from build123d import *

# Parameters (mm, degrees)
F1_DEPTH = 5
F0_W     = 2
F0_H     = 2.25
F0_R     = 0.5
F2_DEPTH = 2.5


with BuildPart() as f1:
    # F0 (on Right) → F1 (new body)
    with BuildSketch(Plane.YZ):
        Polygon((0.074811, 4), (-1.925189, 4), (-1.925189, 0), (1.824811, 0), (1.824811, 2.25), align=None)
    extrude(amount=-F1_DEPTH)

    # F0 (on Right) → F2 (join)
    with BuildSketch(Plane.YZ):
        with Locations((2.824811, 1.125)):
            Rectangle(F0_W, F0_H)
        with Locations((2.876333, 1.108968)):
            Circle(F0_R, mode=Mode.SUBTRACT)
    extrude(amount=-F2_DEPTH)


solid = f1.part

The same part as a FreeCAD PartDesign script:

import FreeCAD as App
import Part
import Sketcher

V = App.Vector
Q = App.Units.Quantity


def add_polygon(sketch, points):
    """Adds a closed chain of lines whose ends are joined by coincident constraints."""
    first, n = sketch.GeometryCount, len(points)
    for a, b in zip(points, points[1:] + points[:1]):
        sketch.addGeometry(Part.LineSegment(App.Vector(*a, 0), App.Vector(*b, 0)), False)
    for i in range(n):
        sketch.addConstraint(Sketcher.Constraint("Coincident", first + i, 2, first + (i + 1) % n, 1))

doc = App.newDocument("Part")
body = doc.addObject("PartDesign::Body", "Body")

# Sketch on YZ plane
sketch1 = body.newObject("Sketcher::SketchObject", "Sketch")
sketch1.AttachmentSupport = (doc.getObject("YZ_Plane"), [""])
sketch1.MapMode = "FlatFace"
add_polygon(sketch1, [(0.074811, 4), (-1.925189, 4), (-1.925189, 0), (1.824811, 0), (1.824811, 2.25)])  # lines 0-4
sketch1.addConstraint([
    Sketcher.Constraint("Horizontal", 0),
    Sketcher.Constraint("Vertical", 1),
    Sketcher.Constraint("Horizontal", 2),
    Sketcher.Constraint("Vertical", 3),
    Sketcher.Constraint("PointOnObject", 1, 2, -1),
    Sketcher.Constraint("DistanceX", 0, 2, 0, 1, Q("2 mm")),
    Sketcher.Constraint("DistanceY", 1, 2, 1, 1, Q("4 mm")),
    Sketcher.Constraint("Angle", 4, Q("135 deg")),
    Sketcher.Constraint("DistanceX", 2, 1, 2, 2, Q("3.75 mm")),
    Sketcher.Constraint("DistanceX", 0, 2, -1, 1, Q("1.925189 mm")),
])
pad1 = body.newObject("PartDesign::Pad", "Pad")
pad1.Profile = sketch1
pad1.Length = 5
pad1.Reversed = True

# Sketch on YZ plane
sketch2 = body.newObject("Sketcher::SketchObject", "Sketch001")
sketch2.AttachmentSupport = (doc.getObject("YZ_Plane"), [""])
sketch2.MapMode = "FlatFace"
add_polygon(sketch2, [(1.824811, 2.25), (1.824811, 0), (3.824811, 0), (3.824811, 2.25)])  # lines 0-3
sketch2.addGeometry(Part.Circle(V(2.876333, 1.108968, 0), V(0, 0, 1), 0.5), False)  # 4
sketch2.addConstraint([
    Sketcher.Constraint("Vertical", 0),
    Sketcher.Constraint("Horizontal", 1),
    Sketcher.Constraint("Vertical", 2),
    Sketcher.Constraint("Horizontal", 3),
    Sketcher.Constraint("PointOnObject", 0, 2, -1),
    Sketcher.Constraint("Diameter", 4, Q("1 mm")),
    Sketcher.Constraint("DistanceX", 1, 1, 1, 2, Q("2 mm")),
    Sketcher.Constraint("DistanceY", 0, 2, 0, 1, Q("2.25 mm")),
    Sketcher.Constraint("DistanceX", -1, 1, 0, 2, Q("1.824811 mm")),
    Sketcher.Constraint("DistanceX", 0, 2, 4, 3, Q("1.051522 mm")),
    Sketcher.Constraint("DistanceY", -1, 1, 4, 3, Q("1.108968 mm")),
])
pad2 = body.newObject("PartDesign::Pad", "Pad001")
pad2.Profile = sketch2
pad2.Length = 2.5
pad2.Reversed = True

doc.recompute()
